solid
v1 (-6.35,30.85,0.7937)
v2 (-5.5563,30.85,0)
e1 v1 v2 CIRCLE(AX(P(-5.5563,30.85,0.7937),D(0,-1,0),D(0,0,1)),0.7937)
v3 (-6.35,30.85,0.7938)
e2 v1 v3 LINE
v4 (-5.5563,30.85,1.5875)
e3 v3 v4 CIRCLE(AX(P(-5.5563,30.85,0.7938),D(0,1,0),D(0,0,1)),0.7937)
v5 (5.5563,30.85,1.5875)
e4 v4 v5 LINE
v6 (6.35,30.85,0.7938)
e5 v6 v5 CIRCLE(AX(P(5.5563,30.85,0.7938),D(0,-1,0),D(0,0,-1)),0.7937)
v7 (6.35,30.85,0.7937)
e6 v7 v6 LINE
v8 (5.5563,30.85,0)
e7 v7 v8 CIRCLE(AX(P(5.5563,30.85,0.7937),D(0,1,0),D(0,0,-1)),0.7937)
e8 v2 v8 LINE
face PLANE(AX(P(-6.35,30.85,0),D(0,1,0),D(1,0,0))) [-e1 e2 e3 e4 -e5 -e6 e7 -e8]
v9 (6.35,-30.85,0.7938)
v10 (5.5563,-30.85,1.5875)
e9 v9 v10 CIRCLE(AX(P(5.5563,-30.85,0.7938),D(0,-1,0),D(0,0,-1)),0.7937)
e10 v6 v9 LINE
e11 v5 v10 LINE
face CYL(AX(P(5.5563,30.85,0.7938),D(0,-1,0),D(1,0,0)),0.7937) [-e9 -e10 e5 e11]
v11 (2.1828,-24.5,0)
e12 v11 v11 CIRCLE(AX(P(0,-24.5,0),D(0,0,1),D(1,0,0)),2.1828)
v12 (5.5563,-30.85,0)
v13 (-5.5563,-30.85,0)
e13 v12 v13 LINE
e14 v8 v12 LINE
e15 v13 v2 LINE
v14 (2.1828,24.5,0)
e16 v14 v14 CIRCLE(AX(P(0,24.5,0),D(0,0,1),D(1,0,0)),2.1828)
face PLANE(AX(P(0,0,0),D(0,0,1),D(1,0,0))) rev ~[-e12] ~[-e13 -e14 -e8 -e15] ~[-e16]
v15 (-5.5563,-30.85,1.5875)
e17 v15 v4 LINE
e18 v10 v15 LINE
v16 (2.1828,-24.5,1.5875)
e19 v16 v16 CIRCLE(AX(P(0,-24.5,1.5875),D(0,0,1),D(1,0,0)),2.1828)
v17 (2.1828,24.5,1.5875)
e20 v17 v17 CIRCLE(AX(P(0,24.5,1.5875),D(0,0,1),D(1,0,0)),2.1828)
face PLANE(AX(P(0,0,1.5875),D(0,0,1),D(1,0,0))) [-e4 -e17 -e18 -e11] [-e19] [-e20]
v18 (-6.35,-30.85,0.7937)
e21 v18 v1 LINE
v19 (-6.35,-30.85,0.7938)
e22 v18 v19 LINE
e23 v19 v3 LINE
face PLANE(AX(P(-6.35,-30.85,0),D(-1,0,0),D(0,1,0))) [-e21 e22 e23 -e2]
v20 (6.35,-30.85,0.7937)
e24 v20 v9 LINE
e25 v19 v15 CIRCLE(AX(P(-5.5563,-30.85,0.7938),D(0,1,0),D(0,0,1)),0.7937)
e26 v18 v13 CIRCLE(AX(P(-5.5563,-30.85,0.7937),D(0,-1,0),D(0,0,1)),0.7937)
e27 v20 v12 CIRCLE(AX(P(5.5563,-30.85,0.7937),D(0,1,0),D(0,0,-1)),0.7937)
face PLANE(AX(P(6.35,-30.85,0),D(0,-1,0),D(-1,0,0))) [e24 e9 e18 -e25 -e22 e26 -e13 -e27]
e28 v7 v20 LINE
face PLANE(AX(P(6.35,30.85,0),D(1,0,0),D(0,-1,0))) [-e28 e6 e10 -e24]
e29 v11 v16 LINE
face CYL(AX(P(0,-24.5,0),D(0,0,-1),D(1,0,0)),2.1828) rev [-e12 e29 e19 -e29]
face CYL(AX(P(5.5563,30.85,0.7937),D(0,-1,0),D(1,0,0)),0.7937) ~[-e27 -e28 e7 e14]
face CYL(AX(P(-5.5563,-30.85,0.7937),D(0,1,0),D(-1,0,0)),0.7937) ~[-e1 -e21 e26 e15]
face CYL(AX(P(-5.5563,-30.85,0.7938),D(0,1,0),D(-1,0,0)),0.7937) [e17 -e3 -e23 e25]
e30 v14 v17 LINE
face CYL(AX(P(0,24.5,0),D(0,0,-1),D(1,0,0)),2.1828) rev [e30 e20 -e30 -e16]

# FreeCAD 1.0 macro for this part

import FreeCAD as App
import Part
import Sketcher

V = App.Vector
Q = App.Units.Quantity


def edges_at(feature, points):
    """Names of the edges that pass closest to the given points."""
    edges = feature.Shape.Edges
    near = lambda p: min(range(len(edges)), key=lambda i: edges[i].distToShape(Part.Vertex(*p))[0])
    return sorted({f"Edge{near(p) + 1}" for p in points})

doc = App.newDocument("Part")
body = doc.addObject("PartDesign::Body", "Body")

sketch1 = body.newObject("Sketcher::SketchObject", "Sketch")
sketch1.AttachmentSupport = (doc.getObject("XY_Plane"), [""])
sketch1.MapMode = "FlatFace"
sketch1.addGeometry([
    Part.LineSegment(V(-6.35, -30.85, 0), V(6.35, -30.85, 0)),
    Part.LineSegment(V(6.35, -30.85, 0), V(6.35, 30.85, 0)),
    Part.LineSegment(V(6.35, 30.85, 0), V(-6.35, 30.85, 0)),
    Part.LineSegment(V(-6.35, 30.85, 0), V(-6.35, -30.85, 0)),
    Part.Circle(V(0, -24.5, 0), V(0, 0, 1), 2.1828),
    Part.Circle(V(0, 24.5, 0), V(0, 0, 1), 2.1828),
], False)
sketch1.addConstraint([
    Sketcher.Constraint("Coincident", 0, 2, 1, 1),
    Sketcher.Constraint("Coincident", 1, 2, 2, 1),
    Sketcher.Constraint("Coincident", 2, 2, 3, 1),
    Sketcher.Constraint("Coincident", 3, 2, 0, 1),
    Sketcher.Constraint("Horizontal", 0),
    Sketcher.Constraint("Vertical", 1),
    Sketcher.Constraint("Horizontal", 2),
    Sketcher.Constraint("Vertical", 3),
    Sketcher.Constraint("Equal", 4, 5),
    Sketcher.Constraint("Symmetric", 4, 3, 5, 3, -1, 1),
    Sketcher.Constraint("Symmetric", 0, 2, 2, 2, -1, 1),
    Sketcher.Constraint("PointOnObject", 4, 3, -2),
    Sketcher.Constraint("Diameter", 4, Q("0.171874 in")),
    Sketcher.Constraint("DistanceX", 0, 1, 0, 2, Q("0.5 in")),
    Sketcher.Constraint("DistanceY", 0, 2, 4, 3, Q("0.25 in")),
    Sketcher.Constraint("DistanceY", 4, 3, -1, 1, Q("24.5 mm")),
])
pad1 = body.newObject("PartDesign::Pad", "Pad")
pad1.Profile = sketch1
pad1.Length = Q("0.0625 in")
doc.recompute()

fillet = body.newObject("PartDesign::Fillet", "Fillet")
fillet.Base = (pad1, edges_at(pad1, [
    (6.35, 0, 1.587),
    (6.35, 0, 0),
    (-6.35, 0, 0),
    (-6.35, 0, 1.587),
]))
fillet.Radius = Q("0.031248 in")

doc.recompute()
